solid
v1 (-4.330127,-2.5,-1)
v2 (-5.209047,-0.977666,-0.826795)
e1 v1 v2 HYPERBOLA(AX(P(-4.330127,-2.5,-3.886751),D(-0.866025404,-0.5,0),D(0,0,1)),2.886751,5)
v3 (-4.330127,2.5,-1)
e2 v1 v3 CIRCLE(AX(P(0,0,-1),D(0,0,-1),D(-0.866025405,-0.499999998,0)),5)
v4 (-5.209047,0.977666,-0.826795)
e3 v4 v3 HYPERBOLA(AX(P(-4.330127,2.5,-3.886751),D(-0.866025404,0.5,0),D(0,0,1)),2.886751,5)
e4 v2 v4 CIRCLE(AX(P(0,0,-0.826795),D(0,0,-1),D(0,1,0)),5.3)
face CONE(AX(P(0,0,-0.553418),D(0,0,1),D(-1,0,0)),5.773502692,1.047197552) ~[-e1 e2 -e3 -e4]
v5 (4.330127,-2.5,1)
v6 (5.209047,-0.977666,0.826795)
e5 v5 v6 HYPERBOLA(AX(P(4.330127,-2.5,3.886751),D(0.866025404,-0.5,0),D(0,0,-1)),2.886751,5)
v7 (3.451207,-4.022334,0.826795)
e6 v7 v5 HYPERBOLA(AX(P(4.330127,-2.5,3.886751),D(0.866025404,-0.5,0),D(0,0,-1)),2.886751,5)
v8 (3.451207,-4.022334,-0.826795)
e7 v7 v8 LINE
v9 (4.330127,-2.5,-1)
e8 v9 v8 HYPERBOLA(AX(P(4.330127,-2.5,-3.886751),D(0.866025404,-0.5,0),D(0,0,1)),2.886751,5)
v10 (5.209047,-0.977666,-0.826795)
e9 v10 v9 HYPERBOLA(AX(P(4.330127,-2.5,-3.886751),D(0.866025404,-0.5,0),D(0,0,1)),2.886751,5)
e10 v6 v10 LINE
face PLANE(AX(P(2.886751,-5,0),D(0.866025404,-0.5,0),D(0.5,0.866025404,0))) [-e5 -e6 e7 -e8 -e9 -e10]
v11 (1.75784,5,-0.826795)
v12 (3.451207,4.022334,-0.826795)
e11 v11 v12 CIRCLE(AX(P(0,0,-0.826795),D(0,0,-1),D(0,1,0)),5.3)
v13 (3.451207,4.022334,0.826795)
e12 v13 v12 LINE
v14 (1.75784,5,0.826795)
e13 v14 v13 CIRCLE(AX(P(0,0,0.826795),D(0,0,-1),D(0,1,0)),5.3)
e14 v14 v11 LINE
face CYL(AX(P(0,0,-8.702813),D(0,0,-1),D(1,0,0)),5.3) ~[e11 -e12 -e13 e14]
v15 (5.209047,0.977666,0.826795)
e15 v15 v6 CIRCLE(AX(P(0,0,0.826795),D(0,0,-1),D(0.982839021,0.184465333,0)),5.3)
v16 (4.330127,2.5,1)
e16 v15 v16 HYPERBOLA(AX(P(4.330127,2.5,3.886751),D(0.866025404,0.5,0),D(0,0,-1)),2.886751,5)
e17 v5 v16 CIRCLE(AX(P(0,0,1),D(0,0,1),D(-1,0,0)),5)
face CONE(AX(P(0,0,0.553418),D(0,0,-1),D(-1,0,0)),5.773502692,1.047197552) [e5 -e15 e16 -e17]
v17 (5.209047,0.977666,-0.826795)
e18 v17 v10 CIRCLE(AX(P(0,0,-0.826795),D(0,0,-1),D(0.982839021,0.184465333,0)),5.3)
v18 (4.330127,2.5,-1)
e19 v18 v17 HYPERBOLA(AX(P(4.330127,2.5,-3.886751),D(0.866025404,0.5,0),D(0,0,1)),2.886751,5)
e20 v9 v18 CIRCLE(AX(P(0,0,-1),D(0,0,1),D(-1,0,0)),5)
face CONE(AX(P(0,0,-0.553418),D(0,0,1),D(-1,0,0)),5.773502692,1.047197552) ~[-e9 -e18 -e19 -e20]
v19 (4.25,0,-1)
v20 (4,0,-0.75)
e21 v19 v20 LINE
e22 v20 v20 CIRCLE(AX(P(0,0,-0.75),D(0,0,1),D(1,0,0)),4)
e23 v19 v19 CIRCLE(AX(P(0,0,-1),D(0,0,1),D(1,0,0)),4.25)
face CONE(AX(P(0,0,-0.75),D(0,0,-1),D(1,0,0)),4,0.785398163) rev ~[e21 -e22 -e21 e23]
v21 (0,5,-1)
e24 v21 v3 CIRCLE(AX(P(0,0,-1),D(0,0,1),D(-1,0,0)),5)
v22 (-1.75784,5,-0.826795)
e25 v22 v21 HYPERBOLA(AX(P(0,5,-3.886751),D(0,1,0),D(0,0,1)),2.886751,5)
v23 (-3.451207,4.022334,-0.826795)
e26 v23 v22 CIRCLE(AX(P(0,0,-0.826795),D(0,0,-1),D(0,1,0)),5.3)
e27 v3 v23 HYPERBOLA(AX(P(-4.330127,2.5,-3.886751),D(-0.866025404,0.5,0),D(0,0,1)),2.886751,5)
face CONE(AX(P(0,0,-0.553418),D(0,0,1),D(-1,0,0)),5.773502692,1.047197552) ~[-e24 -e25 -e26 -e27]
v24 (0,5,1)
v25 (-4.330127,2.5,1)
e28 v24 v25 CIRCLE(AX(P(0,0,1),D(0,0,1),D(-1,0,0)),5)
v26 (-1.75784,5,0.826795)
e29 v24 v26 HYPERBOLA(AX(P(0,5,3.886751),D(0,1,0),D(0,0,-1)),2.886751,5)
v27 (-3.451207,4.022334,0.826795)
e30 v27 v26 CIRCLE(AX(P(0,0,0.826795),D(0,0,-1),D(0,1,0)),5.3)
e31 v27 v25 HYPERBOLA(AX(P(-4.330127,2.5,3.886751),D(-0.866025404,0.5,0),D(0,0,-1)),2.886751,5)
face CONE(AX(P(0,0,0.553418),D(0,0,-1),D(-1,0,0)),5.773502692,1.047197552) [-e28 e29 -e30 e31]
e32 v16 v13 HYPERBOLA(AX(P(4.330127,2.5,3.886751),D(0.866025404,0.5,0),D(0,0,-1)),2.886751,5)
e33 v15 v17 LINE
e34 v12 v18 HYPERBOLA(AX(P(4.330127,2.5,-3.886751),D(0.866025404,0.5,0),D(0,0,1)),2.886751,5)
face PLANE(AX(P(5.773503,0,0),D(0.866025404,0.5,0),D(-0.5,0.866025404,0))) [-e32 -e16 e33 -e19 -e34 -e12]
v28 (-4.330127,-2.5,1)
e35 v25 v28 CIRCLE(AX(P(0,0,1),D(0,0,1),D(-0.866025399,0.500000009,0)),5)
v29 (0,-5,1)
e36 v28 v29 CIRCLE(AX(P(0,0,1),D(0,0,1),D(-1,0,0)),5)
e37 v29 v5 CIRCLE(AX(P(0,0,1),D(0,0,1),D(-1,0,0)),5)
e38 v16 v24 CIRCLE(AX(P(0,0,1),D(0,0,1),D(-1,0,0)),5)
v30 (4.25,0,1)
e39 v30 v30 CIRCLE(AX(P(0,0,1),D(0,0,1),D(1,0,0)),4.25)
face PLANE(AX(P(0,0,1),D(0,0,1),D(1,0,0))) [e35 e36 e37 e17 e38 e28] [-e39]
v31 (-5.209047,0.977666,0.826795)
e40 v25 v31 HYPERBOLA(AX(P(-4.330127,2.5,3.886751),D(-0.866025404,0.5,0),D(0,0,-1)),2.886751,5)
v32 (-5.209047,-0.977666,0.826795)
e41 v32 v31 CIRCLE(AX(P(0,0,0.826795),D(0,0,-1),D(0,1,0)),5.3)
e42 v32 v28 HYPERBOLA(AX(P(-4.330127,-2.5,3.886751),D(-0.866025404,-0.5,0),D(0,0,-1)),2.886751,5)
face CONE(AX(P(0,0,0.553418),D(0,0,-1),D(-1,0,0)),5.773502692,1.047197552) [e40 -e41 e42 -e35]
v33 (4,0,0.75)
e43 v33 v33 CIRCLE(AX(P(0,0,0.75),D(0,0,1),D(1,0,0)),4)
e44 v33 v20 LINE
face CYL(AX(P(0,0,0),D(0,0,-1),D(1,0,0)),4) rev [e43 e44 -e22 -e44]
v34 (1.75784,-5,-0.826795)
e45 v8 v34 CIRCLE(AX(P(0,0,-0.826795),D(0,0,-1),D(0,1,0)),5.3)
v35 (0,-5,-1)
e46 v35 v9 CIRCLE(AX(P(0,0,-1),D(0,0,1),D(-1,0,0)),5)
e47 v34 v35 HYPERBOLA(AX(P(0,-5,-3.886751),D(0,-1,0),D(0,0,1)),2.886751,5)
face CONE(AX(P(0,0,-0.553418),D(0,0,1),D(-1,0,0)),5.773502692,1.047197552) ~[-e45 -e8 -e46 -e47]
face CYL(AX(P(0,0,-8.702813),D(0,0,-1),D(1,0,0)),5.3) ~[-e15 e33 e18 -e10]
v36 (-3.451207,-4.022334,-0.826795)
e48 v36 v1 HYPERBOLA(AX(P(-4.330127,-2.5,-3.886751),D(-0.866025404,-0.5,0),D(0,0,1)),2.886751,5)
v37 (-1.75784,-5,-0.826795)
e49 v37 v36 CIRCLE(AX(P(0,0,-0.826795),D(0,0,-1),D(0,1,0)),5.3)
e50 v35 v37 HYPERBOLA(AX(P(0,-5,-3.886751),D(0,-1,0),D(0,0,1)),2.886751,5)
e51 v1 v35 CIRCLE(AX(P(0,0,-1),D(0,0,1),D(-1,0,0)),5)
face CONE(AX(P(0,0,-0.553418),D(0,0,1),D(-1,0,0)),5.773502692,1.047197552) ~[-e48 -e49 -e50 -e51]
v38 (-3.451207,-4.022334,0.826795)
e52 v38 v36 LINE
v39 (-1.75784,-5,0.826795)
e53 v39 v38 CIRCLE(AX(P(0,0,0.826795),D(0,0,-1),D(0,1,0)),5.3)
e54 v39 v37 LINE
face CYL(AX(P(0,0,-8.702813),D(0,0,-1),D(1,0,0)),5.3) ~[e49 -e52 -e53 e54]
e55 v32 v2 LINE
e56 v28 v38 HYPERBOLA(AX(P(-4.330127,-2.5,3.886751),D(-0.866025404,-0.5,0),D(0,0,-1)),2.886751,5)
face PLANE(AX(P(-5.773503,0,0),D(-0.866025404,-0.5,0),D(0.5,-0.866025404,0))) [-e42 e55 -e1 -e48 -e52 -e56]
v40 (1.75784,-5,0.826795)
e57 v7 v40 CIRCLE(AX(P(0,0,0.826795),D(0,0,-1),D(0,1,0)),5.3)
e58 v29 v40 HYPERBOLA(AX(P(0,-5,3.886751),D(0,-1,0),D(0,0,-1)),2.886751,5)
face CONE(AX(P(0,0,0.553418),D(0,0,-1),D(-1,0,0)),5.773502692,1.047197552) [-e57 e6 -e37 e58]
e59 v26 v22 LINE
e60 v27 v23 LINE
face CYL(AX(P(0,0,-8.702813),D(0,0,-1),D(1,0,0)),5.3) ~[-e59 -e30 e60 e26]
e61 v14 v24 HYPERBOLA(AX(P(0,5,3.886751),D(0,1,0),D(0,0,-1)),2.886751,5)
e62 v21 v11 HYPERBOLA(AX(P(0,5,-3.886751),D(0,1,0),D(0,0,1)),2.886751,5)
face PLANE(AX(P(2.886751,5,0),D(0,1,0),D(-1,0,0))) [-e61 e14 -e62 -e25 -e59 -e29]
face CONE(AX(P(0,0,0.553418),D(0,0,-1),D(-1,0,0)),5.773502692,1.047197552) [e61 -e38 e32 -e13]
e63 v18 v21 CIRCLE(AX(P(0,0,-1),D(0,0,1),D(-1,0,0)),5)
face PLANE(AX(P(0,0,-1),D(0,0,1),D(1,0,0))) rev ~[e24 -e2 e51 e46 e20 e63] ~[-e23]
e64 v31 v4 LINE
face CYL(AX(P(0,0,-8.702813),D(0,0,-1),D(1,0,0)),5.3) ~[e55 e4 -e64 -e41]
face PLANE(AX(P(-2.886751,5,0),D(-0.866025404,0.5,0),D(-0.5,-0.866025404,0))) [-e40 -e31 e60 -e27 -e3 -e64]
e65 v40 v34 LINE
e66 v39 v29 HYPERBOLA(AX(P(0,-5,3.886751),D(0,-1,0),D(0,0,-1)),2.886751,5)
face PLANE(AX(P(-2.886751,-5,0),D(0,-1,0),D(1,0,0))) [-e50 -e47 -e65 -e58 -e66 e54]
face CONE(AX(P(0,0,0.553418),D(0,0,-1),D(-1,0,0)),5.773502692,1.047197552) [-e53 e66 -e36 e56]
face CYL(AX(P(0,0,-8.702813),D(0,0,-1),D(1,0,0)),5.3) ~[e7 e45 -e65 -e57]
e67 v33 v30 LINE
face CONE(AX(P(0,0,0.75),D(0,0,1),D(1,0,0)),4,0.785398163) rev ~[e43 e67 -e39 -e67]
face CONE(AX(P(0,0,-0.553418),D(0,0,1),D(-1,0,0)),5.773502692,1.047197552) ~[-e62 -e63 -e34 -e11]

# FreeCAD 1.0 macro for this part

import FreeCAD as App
import Part
import Sketcher
Q = App.Units.Quantity


def edges_at(feature, points):
    """Names of the edges that pass closest to the given points."""
    edges = feature.Shape.Edges
    near = lambda p: min(range(len(edges)), key=lambda i: edges[i].distToShape(Part.Vertex(*p))[0])
    return sorted({f"Edge{near(p) + 1}" for p in points})

doc = App.newDocument("Part")
body = doc.addObject("PartDesign::Body", "Body")

# Sketch on XY plane
sketch1 = body.newObject("Sketcher::SketchObject", "Sketch")
sketch1.AttachmentSupport = (doc.getObject("XY_Plane"), [""])
sketch1.MapMode = "FlatFace"
sketch1.addGeometry(Part.LineSegment(App.Vector(2.886751, 5, 0), App.Vector(-2.886751, 5, 0)), False)
sketch1.addGeometry(Part.LineSegment(App.Vector(-2.886751, 5, 0), App.Vector(-5.773503, 0, 0)), False)
sketch1.addGeometry(Part.LineSegment(App.Vector(-5.773503, 0, 0), App.Vector(-2.886751, -5, 0)), False)
sketch1.addGeometry(Part.LineSegment(App.Vector(-2.886751, -5, 0), App.Vector(2.886751, -5, 0)), False)
sketch1.addGeometry(Part.LineSegment(App.Vector(2.886751, -5, 0), App.Vector(5.773503, 0, 0)), False)
sketch1.addGeometry(Part.LineSegment(App.Vector(5.773503, 0, 0), App.Vector(2.886751, 5, 0)), False)
sketch1.addGeometry(Part.Circle(App.Vector(0, 0, 0), App.Vector(0, 0, 1), 4), False)
sketch1.addConstraint(Sketcher.Constraint("Coincident", 0, 2, 1, 1))
sketch1.addConstraint(Sketcher.Constraint("Coincident", 1, 2, 2, 1))
sketch1.addConstraint(Sketcher.Constraint("Coincident", 2, 2, 3, 1))
sketch1.addConstraint(Sketcher.Constraint("Coincident", 3, 2, 4, 1))
sketch1.addConstraint(Sketcher.Constraint("Coincident", 4, 2, 5, 1))
sketch1.addConstraint(Sketcher.Constraint("Coincident", 5, 2, 0, 1))
sketch1.addConstraint(Sketcher.Constraint("Horizontal", 0))
sketch1.addConstraint(Sketcher.Constraint("Horizontal", 3))
sketch1.addConstraint(Sketcher.Constraint("Coincident", 6, 3, -1, 1))
sketch1.addConstraint(Sketcher.Constraint("Symmetric", 0, 2, 3, 2, -1, 1))
sketch1.addConstraint(Sketcher.Constraint("Symmetric", 1, 2, 4, 2, -1, 1))
sketch1.addConstraint(Sketcher.Constraint("PointOnObject", 1, 2, -1))
sketch1.addConstraint(Sketcher.Constraint("Parallel", 2, 5))
sketch1.addConstraint(Sketcher.Constraint("Vertical", 0, 2, 2, 2))
sketch1.addConstraint(Sketcher.Constraint("Diameter", 6, 8.0))
sketch1.addConstraint(Sketcher.Constraint("Angle", 1, Q("-120 deg")))
sketch1.addConstraint(Sketcher.Constraint("DistanceY", -1, 1, 0, 2, 5.0))
sketch1.addConstraint(Sketcher.Constraint("DistanceX", 0, 2, 0, 1, 5.773503))
pad1 = body.newObject("PartDesign::Pad", "Pad")
pad1.Profile = sketch1
pad1.Length = 2
pad1.Midplane = True

# Sketch on XZ plane
sketch2 = body.newObject("Sketcher::SketchObject", "Sketch001")
sketch2.AttachmentSupport = (doc.getObject("XZ_Plane"), [""])
sketch2.MapMode = "FlatFace"
sketch2.addGeometry(Part.LineSegment(App.Vector(-5.773503, -1, 0), App.Vector(-5.773503, -0.553418, 0)), False)
sketch2.addGeometry(Part.LineSegment(App.Vector(-5.773503, -0.553418, 0), App.Vector(-5, -1, 0)), False)
sketch2.addGeometry(Part.LineSegment(App.Vector(-5, -1, 0), App.Vector(-5.773503, -1, 0)), False)
sketch2.addGeometry(Part.LineSegment(App.Vector(-5.773503, 1, 0), App.Vector(-5, 1, 0)), False)
sketch2.addGeometry(Part.LineSegment(App.Vector(-5, 1, 0), App.Vector(-5.773503, 0.553418, 0)), False)
sketch2.addGeometry(Part.LineSegment(App.Vector(-5.773503, 0.553418, 0), App.Vector(-5.773503, 1, 0)), False)
sketch2.addConstraint(Sketcher.Constraint("Coincident", 0, 2, 1, 1))
sketch2.addConstraint(Sketcher.Constraint("Coincident", 1, 2, 2, 1))
sketch2.addConstraint(Sketcher.Constraint("Coincident", 2, 2, 0, 1))
sketch2.addConstraint(Sketcher.Constraint("Coincident", 3, 2, 4, 1))
sketch2.addConstraint(Sketcher.Constraint("Coincident", 4, 2, 5, 1))
sketch2.addConstraint(Sketcher.Constraint("Coincident", 5, 2, 3, 1))
sketch2.addConstraint(Sketcher.Constraint("Vertical", 0))
sketch2.addConstraint(Sketcher.Constraint("Horizontal", 2))
sketch2.addConstraint(Sketcher.Constraint("Horizontal", 3))
sketch2.addConstraint(Sketcher.Constraint("Vertical", 5))
sketch2.addConstraint(Sketcher.Constraint("Symmetric", 1, 2, 3, 2, -1))
sketch2.addConstraint(Sketcher.Constraint("Symmetric", 0, 2, 4, 2, -1))
sketch2.addConstraint(Sketcher.Constraint("Angle", 1, Q("-30 deg")))
sketch2.addConstraint(Sketcher.Constraint("DistanceX", 1, 2, -1, 1, 5.0))
sketch2.addConstraint(Sketcher.Constraint("DistanceY", 1, 2, -1, 1, 1.0))
sketch2.addConstraint(Sketcher.Constraint("DistanceY", 0, 1, 0, 2, 0.446582))
groove = body.newObject("PartDesign::Groove", "Groove")
groove.Profile = sketch2
groove.ReferenceAxis = (sketch2, ["V_Axis"])
groove.Angle = 360
doc.recompute()

chamfer = body.newObject("PartDesign::Chamfer", "Chamfer")
chamfer.Base = (groove, edges_at(groove, [(-4, 0, -1), (-4, 0, 1)]))
chamfer.Size = 0.25

# Sketch on XY plane
sketch3 = body.newObject("Sketcher::SketchObject", "Sketch002")
sketch3.AttachmentSupport = (doc.getObject("XY_Plane"), [""])
sketch3.MapMode = "FlatFace"
sketch3.addGeometry(Part.LineSegment(App.Vector(-8.315, 7.541, 0), App.Vector(-8.315, -7.541, 0)), False)
sketch3.addGeometry(Part.LineSegment(App.Vector(-8.315, -7.541, 0), App.Vector(8.315, -7.541, 0)), False)
sketch3.addGeometry(Part.LineSegment(App.Vector(8.315, -7.541, 0), App.Vector(8.315, 7.541, 0)), False)
sketch3.addGeometry(Part.LineSegment(App.Vector(8.315, 7.541, 0), App.Vector(-8.315, 7.541, 0)), False)
sketch3.addGeometry(Part.Circle(App.Vector(0, 0, 0), App.Vector(0, 0, 1), 5.3), False)
sketch3.addConstraint(Sketcher.Constraint("Coincident", 0, 2, 1, 1))
sketch3.addConstraint(Sketcher.Constraint("Coincident", 1, 2, 2, 1))
sketch3.addConstraint(Sketcher.Constraint("Coincident", 2, 2, 3, 1))
sketch3.addConstraint(Sketcher.Constraint("Coincident", 3, 2, 0, 1))
sketch3.addConstraint(Sketcher.Constraint("Vertical", 0))
sketch3.addConstraint(Sketcher.Constraint("Horizontal", 1))
sketch3.addConstraint(Sketcher.Constraint("Vertical", 2))
sketch3.addConstraint(Sketcher.Constraint("Horizontal", 3))
sketch3.addConstraint(Sketcher.Constraint("Coincident", 4, 3, -1, 1))
sketch3.addConstraint(Sketcher.Constraint("Symmetric", 0, 2, 2, 2, -1, 1))
sketch3.addConstraint(Sketcher.Constraint("Diameter", 4, 10.6))
sketch3.addConstraint(Sketcher.Constraint("DistanceX", 1, 1, 1, 2, 16.63))
sketch3.addConstraint(Sketcher.Constraint("DistanceY", 0, 2, 0, 1, 15.082))
pocket1 = body.newObject("PartDesign::Pocket", "Pocket")
pocket1.Profile = sketch3
pocket1.Type = "ThroughAll"
pocket1.Midplane = True

doc.recompute()
